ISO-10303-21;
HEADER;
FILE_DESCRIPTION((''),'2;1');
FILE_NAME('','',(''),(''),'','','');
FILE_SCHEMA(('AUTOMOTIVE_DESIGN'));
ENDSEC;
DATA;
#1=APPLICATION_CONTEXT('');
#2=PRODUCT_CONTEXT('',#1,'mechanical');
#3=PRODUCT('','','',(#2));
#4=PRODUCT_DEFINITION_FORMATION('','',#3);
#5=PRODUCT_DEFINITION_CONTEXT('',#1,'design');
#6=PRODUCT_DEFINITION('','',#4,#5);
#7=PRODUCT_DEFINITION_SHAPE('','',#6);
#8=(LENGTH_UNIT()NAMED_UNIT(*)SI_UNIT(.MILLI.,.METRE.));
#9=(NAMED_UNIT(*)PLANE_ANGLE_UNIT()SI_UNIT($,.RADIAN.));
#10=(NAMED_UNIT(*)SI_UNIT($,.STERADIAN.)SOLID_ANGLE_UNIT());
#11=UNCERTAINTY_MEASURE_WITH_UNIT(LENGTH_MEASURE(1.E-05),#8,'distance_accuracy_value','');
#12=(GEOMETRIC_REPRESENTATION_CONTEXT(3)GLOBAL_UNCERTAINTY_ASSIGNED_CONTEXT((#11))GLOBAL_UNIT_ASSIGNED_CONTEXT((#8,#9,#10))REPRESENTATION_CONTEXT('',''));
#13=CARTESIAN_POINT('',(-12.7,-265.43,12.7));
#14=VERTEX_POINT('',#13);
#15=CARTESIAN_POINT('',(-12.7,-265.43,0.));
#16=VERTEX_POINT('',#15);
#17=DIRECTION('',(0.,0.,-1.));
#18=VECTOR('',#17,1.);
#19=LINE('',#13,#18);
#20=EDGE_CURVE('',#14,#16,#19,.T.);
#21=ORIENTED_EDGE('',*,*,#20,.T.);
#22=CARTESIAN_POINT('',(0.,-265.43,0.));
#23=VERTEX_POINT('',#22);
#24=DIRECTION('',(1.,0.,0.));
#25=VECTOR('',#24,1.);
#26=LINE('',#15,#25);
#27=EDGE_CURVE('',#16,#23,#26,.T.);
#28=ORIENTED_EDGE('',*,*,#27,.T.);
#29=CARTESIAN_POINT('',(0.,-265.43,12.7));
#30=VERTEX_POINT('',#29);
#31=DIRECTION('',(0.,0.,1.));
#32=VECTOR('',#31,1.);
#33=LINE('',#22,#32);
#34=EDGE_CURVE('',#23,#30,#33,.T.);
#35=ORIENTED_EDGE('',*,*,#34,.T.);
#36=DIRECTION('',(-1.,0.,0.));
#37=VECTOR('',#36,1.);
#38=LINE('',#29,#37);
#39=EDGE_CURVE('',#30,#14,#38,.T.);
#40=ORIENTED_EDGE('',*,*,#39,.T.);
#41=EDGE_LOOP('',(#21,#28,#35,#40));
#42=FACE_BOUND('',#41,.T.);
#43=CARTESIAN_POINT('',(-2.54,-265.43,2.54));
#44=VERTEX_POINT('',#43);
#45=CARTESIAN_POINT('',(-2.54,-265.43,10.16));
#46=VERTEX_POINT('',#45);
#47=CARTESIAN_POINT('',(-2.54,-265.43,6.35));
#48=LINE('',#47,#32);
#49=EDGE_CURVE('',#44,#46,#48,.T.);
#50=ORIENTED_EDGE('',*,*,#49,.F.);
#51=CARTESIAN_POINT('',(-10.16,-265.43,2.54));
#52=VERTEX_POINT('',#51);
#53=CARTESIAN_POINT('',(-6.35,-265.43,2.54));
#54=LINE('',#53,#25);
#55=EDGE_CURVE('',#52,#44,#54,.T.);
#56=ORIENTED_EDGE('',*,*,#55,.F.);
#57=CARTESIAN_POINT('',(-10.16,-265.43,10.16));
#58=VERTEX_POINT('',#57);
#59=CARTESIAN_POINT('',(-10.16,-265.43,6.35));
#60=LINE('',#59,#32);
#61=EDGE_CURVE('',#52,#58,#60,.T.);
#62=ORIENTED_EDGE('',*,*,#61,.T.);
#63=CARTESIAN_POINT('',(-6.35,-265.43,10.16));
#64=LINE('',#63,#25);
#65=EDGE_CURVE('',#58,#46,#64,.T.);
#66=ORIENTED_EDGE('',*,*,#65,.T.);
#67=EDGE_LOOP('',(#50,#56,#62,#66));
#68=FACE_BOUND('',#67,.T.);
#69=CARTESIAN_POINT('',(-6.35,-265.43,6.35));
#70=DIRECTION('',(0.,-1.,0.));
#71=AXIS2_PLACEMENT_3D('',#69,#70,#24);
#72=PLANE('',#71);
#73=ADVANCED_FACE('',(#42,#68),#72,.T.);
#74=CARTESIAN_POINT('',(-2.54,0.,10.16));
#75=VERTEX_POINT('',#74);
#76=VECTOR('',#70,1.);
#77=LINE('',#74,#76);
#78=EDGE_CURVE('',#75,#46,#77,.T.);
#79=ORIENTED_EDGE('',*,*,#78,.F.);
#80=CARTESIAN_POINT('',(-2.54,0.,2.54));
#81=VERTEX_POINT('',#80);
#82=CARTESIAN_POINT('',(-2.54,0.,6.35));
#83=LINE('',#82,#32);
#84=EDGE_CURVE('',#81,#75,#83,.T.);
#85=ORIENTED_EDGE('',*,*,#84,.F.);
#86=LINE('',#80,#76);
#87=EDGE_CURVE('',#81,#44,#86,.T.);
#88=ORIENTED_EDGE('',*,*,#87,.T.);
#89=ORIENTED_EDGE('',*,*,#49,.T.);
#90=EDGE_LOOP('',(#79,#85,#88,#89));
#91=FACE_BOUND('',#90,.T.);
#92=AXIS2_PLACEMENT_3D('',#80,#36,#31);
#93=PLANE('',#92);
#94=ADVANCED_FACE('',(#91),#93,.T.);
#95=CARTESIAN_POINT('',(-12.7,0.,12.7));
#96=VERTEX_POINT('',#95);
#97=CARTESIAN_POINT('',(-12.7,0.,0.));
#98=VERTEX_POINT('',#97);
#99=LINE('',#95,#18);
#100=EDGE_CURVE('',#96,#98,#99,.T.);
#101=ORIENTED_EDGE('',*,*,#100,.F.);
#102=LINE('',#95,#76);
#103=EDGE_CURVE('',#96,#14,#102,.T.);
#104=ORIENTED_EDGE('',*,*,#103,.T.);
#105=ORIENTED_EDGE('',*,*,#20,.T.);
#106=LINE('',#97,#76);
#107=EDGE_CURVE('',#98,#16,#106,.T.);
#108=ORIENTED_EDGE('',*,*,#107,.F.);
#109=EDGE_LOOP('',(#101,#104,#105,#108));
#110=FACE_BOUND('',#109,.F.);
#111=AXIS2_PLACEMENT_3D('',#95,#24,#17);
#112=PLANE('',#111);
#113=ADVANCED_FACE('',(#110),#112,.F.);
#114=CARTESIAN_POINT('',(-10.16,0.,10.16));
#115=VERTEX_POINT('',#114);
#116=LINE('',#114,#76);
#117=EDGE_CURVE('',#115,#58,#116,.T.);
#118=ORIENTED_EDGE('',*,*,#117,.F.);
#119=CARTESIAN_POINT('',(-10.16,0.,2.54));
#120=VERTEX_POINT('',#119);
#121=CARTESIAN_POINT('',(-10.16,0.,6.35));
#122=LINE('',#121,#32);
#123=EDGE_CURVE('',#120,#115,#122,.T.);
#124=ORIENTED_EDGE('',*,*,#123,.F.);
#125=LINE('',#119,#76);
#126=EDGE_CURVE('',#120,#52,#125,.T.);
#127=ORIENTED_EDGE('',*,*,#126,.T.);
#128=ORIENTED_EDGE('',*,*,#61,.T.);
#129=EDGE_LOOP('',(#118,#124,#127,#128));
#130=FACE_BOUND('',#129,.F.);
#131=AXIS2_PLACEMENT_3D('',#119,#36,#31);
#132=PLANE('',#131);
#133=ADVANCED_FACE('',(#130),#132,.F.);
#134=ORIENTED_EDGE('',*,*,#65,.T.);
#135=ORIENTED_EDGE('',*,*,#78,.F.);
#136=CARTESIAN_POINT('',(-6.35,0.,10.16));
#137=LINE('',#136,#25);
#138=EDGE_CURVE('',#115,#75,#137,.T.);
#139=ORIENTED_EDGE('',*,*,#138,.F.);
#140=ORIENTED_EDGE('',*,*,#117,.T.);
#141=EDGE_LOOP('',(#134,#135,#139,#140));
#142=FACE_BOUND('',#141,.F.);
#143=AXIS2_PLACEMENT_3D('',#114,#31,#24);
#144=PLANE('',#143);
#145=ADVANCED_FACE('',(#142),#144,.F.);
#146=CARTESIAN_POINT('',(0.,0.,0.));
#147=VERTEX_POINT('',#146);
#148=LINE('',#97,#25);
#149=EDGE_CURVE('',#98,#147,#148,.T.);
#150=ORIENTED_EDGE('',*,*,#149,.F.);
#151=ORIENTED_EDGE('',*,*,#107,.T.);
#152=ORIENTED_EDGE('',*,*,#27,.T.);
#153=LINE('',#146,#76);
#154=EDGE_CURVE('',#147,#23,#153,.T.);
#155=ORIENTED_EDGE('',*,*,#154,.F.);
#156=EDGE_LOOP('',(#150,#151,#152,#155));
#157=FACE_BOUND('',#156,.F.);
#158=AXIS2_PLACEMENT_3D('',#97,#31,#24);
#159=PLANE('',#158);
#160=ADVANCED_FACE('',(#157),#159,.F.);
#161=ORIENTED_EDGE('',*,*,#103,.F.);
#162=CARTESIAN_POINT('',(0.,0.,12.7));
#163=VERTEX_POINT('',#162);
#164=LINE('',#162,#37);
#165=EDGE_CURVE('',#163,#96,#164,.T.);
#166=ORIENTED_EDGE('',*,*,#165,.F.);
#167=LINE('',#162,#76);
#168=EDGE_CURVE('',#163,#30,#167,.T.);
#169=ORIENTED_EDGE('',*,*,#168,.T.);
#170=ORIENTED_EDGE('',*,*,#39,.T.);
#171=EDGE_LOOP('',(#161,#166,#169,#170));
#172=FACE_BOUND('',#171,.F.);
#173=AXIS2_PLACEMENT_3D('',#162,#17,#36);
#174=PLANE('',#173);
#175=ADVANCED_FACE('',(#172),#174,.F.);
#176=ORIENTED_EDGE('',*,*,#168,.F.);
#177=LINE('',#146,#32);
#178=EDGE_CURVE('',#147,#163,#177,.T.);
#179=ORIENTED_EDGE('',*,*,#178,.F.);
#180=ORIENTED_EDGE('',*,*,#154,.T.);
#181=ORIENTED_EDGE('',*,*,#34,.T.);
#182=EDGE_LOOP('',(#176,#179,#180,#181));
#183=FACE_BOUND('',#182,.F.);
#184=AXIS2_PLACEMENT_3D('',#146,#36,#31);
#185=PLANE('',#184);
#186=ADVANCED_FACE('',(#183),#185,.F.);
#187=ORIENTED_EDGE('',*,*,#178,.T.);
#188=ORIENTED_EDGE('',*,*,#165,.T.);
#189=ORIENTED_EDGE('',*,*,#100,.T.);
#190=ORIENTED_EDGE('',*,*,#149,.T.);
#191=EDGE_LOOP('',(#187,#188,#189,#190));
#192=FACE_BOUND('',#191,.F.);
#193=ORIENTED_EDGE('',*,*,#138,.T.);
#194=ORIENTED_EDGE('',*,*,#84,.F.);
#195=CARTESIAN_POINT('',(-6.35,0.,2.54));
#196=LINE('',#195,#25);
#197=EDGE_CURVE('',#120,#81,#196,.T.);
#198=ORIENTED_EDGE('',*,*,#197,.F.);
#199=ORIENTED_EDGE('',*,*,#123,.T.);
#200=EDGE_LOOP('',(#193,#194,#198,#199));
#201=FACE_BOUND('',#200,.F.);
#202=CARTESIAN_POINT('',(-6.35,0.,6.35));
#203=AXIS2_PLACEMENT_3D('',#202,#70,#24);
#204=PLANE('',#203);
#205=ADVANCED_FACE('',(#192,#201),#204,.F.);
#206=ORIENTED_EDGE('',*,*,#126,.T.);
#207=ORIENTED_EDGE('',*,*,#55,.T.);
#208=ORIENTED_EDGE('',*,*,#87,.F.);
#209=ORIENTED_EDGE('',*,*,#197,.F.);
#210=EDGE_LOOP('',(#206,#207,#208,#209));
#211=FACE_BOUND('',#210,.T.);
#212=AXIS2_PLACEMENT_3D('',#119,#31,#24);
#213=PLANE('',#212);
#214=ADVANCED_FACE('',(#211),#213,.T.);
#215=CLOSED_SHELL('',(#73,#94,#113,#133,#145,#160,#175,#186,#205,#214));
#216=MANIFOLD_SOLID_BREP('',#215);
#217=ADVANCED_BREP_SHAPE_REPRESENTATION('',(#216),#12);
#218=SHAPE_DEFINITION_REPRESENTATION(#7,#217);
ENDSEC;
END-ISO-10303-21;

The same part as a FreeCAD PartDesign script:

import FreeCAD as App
import Part
import Sketcher
from FreeCAD import Vector
Q = App.Units.Quantity


def add_polygon(sketch, points):
    """Adds a closed chain of lines whose ends are joined by coincident constraints."""
    first, n = sketch.GeometryCount, len(points)
    for a, b in zip(points, points[1:] + points[:1]):
        sketch.addGeometry(Part.LineSegment(App.Vector(*a, 0), App.Vector(*b, 0)), False)
    for i in range(n):
        sketch.addConstraint(Sketcher.Constraint("Coincident", first + i, 2, first + (i + 1) % n, 1))

doc = App.newDocument("Part")
body = doc.addObject("PartDesign::Body", "Body")

sketch1 = doc.addObject("Sketcher::SketchObject", "Sketch")
body.addObject(sketch1)
sketch1.AttachmentSupport = (doc.XZ_Plane, [""])
sketch1.MapMode = "FlatFace"
add_polygon(sketch1, [(-13, 0), (0, 0), (0, 13), (-13, 13)])
add_polygon(sketch1, [(-3, 3), (-10, 3), (-10, 10), (-3, 10)])
sketch1.addConstraint([
    Sketcher.Constraint("Horizontal", 0),
    Sketcher.Constraint("Vertical", 1),
    Sketcher.Constraint("Horizontal", 2),
    Sketcher.Constraint("Vertical", 3),
    Sketcher.Constraint("Horizontal", 4),
    Sketcher.Constraint("Vertical", 5),
    Sketcher.Constraint("Horizontal", 6),
    Sketcher.Constraint("Vertical", 7),
    Sketcher.Constraint("Coincident", 0, 2, -1, 1),
    Sketcher.Constraint("Equal", 2, 1),
    Sketcher.Constraint("Equal", 6, 5),
    Sketcher.Constraint("DistanceX", 0, 1, 0, 2, Q("0.5 in")),
    Sketcher.Constraint("DistanceX", 4, 2, 4, 1, Q("0.3 in")),
    Sketcher.Constraint("DistanceX", 4, 2, -1, 1, Q("0.4 in")),
    Sketcher.Constraint("DistanceY", -1, 1, 4, 2, Q("0.1 in")),
])
pad1 = doc.addObject("PartDesign::Pad", "Pad")
body.addObject(pad1)
pad1.Profile = sketch1
pad1.Length = Q("10.45 in")

doc.recompute()
